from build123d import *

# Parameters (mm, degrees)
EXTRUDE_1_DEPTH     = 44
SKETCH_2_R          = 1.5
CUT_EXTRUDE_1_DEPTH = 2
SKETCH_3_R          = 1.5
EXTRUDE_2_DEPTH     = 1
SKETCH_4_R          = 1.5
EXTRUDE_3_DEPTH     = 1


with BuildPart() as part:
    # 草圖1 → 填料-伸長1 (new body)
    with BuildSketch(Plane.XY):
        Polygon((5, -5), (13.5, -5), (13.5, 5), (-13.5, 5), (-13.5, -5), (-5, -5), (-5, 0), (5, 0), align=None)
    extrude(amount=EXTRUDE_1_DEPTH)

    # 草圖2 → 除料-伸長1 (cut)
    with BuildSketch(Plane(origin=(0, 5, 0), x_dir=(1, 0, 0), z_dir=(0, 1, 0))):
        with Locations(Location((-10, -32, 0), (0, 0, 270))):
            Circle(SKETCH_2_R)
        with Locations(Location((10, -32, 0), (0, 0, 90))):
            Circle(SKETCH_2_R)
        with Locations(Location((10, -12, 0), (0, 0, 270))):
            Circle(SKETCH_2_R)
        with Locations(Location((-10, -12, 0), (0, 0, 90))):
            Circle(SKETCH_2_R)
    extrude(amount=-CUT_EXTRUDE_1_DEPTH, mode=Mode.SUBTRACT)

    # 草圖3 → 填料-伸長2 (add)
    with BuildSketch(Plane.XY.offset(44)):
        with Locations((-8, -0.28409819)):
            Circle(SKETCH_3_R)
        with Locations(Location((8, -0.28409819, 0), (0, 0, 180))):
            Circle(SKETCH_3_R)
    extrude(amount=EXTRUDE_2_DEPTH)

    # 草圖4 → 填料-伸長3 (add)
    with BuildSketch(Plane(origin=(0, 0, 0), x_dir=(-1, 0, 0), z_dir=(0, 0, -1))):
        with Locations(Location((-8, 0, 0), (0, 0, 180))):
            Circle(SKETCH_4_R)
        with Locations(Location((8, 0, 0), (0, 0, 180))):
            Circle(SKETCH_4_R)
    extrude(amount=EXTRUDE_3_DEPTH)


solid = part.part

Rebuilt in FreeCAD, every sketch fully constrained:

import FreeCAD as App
import Part
import Sketcher


def add_polygon(sketch, points):
    """Adds a closed chain of lines whose ends are joined by coincident constraints."""
    first, n = sketch.GeometryCount, len(points)
    for a, b in zip(points, points[1:] + points[:1]):
        sketch.addGeometry(Part.LineSegment(App.Vector(*a, 0), App.Vector(*b, 0)), False)
    for i in range(n):
        sketch.addConstraint(Sketcher.Constraint("Coincident", first + i, 2, first + (i + 1) % n, 1))

doc = App.newDocument("Part")
body = doc.addObject("PartDesign::Body", "Body")

sketch1 = doc.addObject("Sketcher::SketchObject", "Sketch")
body.addObject(sketch1)
sketch1.AttachmentSupport = (doc.XY_Plane, [""])
sketch1.MapMode = "FlatFace"
add_polygon(sketch1, [(5, -5), (13.5, -5), (13.5, 5), (-13.5, 5), (-13.5, -5), (-5, -5), (-5, 0), (5, 0)])
sketch1.addConstraint(Sketcher.Constraint("Horizontal", 0))
sketch1.addConstraint(Sketcher.Constraint("Vertical", 1))
sketch1.addConstraint(Sketcher.Constraint("Horizontal", 2))
sketch1.addConstraint(Sketcher.Constraint("Vertical", 3))
sketch1.addConstraint(Sketcher.Constraint("Horizontal", 4))
sketch1.addConstraint(Sketcher.Constraint("Vertical", 5))
sketch1.addConstraint(Sketcher.Constraint("Horizontal", 6))
sketch1.addConstraint(Sketcher.Constraint("Vertical", 7))
sketch1.addConstraint(Sketcher.Constraint("Symmetric", 0, 2, 2, 2, -1, 1))
sketch1.addConstraint(Sketcher.Constraint("Symmetric", 5, 2, 6, 2, -1, 1))
sketch1.addConstraint(Sketcher.Constraint("Horizontal", 0, 2, 3, 2))
sketch1.addConstraint(Sketcher.Constraint("Equal", 6, 1))
sketch1.addConstraint(Sketcher.Constraint("DistanceX", 2, 2, 2, 1, 27.0))
sketch1.addConstraint(Sketcher.Constraint("DistanceX", 6, 1, 6, 2, 10.0))
pad1 = doc.addObject("PartDesign::Pad", "Pad")
body.addObject(pad1)
pad1.Profile = sketch1
pad1.Length = 44

sketch2 = doc.addObject("Sketcher::SketchObject", "Sketch001")
body.addObject(sketch2)
sketch2.AttachmentSupport = (doc.XZ_Plane, [""])
sketch2.MapMode = "FlatFace"
sketch2.AttachmentOffset = App.Placement(App.Vector(0, 0, -5), App.Rotation())
sketch2.addGeometry(Part.Circle(App.Vector(-10, 32, 0), App.Vector(0, 0, 1), 1.5), False)
sketch2.addGeometry(Part.Circle(App.Vector(10, 32, 0), App.Vector(0, 0, 1), 1.5), False)
sketch2.addGeometry(Part.Circle(App.Vector(10, 12, 0), App.Vector(0, 0, 1), 1.5), False)
sketch2.addGeometry(Part.Circle(App.Vector(-10, 12, 0), App.Vector(0, 0, 1), 1.5), False)
sketch2.addConstraint(Sketcher.Constraint("Equal", 0, 1))
sketch2.addConstraint(Sketcher.Constraint("Equal", 1, 2))
sketch2.addConstraint(Sketcher.Constraint("Equal", 2, 3))
sketch2.addConstraint(Sketcher.Constraint("Symmetric", 0, 3, 1, 3, -2))
sketch2.addConstraint(Sketcher.Constraint("Symmetric", 2, 3, 3, 3, -2))
sketch2.addConstraint(Sketcher.Constraint("Vertical", 1, 3, 2, 3))
sketch2.addConstraint(Sketcher.Constraint("Diameter", 0, 3.0))
sketch2.addConstraint(Sketcher.Constraint("DistanceX", 0, 3, -1, 1, 10.0))
sketch2.addConstraint(Sketcher.Constraint("DistanceY", -1, 1, 0, 3, 32.0))
sketch2.addConstraint(Sketcher.Constraint("DistanceY", -1, 1, 2, 3, 12.0))
pocket1 = doc.addObject("PartDesign::Pocket", "Pocket")
body.addObject(pocket1)
pocket1.Profile = sketch2
pocket1.Length = 2
pocket1.Reversed = True

sketch3 = doc.addObject("Sketcher::SketchObject", "Sketch002")
body.addObject(sketch3)
sketch3.AttachmentSupport = (doc.XY_Plane, [""])
sketch3.MapMode = "FlatFace"
sketch3.AttachmentOffset = App.Placement(App.Vector(0, 0, 44), App.Rotation())
sketch3.addGeometry(Part.Circle(App.Vector(-8, -0.284098, 0), App.Vector(0, 0, 1), 1.5), False)
sketch3.addGeometry(Part.Circle(App.Vector(8, -0.284098, 0), App.Vector(0, 0, 1), 1.5), False)
sketch3.addConstraint(Sketcher.Constraint("Equal", 0, 1))
sketch3.addConstraint(Sketcher.Constraint("Symmetric", 0, 3, 1, 3, -2))
sketch3.addConstraint(Sketcher.Constraint("Diameter", 0, 3.0))
sketch3.addConstraint(Sketcher.Constraint("DistanceX", 0, 3, -1, 1, 8.0))
sketch3.addConstraint(Sketcher.Constraint("DistanceY", 0, 3, -1, 1, 0.284098))
pad2 = doc.addObject("PartDesign::Pad", "Pad001")
body.addObject(pad2)
pad2.Profile = sketch3
pad2.Length = 1

sketch4 = doc.addObject("Sketcher::SketchObject", "Sketch003")
body.addObject(sketch4)
sketch4.AttachmentSupport = (doc.XY_Plane, [""])
sketch4.MapMode = "FlatFace"
sketch4.addGeometry(Part.Circle(App.Vector(8, 0, 0), App.Vector(0, 0, 1), 1.5), False)
sketch4.addGeometry(Part.Circle(App.Vector(-8, 0, 0), App.Vector(0, 0, 1), 1.5), False)
sketch4.addConstraint(Sketcher.Constraint("Equal", 0, 1))
sketch4.addConstraint(Sketcher.Constraint("Symmetric", 0, 3, 1, 3, -1, 1))
sketch4.addConstraint(Sketcher.Constraint("PointOnObject", 0, 3, -1))
sketch4.addConstraint(Sketcher.Constraint("Diameter", 0, 3.0))
sketch4.addConstraint(Sketcher.Constraint("DistanceX", -1, 1, 0, 3, 8.0))
pad3 = doc.addObject("PartDesign::Pad", "Pad002")
body.addObject(pad3)
pad3.Profile = sketch4
pad3.Length = 1
pad3.Reversed = True

doc.recompute()
